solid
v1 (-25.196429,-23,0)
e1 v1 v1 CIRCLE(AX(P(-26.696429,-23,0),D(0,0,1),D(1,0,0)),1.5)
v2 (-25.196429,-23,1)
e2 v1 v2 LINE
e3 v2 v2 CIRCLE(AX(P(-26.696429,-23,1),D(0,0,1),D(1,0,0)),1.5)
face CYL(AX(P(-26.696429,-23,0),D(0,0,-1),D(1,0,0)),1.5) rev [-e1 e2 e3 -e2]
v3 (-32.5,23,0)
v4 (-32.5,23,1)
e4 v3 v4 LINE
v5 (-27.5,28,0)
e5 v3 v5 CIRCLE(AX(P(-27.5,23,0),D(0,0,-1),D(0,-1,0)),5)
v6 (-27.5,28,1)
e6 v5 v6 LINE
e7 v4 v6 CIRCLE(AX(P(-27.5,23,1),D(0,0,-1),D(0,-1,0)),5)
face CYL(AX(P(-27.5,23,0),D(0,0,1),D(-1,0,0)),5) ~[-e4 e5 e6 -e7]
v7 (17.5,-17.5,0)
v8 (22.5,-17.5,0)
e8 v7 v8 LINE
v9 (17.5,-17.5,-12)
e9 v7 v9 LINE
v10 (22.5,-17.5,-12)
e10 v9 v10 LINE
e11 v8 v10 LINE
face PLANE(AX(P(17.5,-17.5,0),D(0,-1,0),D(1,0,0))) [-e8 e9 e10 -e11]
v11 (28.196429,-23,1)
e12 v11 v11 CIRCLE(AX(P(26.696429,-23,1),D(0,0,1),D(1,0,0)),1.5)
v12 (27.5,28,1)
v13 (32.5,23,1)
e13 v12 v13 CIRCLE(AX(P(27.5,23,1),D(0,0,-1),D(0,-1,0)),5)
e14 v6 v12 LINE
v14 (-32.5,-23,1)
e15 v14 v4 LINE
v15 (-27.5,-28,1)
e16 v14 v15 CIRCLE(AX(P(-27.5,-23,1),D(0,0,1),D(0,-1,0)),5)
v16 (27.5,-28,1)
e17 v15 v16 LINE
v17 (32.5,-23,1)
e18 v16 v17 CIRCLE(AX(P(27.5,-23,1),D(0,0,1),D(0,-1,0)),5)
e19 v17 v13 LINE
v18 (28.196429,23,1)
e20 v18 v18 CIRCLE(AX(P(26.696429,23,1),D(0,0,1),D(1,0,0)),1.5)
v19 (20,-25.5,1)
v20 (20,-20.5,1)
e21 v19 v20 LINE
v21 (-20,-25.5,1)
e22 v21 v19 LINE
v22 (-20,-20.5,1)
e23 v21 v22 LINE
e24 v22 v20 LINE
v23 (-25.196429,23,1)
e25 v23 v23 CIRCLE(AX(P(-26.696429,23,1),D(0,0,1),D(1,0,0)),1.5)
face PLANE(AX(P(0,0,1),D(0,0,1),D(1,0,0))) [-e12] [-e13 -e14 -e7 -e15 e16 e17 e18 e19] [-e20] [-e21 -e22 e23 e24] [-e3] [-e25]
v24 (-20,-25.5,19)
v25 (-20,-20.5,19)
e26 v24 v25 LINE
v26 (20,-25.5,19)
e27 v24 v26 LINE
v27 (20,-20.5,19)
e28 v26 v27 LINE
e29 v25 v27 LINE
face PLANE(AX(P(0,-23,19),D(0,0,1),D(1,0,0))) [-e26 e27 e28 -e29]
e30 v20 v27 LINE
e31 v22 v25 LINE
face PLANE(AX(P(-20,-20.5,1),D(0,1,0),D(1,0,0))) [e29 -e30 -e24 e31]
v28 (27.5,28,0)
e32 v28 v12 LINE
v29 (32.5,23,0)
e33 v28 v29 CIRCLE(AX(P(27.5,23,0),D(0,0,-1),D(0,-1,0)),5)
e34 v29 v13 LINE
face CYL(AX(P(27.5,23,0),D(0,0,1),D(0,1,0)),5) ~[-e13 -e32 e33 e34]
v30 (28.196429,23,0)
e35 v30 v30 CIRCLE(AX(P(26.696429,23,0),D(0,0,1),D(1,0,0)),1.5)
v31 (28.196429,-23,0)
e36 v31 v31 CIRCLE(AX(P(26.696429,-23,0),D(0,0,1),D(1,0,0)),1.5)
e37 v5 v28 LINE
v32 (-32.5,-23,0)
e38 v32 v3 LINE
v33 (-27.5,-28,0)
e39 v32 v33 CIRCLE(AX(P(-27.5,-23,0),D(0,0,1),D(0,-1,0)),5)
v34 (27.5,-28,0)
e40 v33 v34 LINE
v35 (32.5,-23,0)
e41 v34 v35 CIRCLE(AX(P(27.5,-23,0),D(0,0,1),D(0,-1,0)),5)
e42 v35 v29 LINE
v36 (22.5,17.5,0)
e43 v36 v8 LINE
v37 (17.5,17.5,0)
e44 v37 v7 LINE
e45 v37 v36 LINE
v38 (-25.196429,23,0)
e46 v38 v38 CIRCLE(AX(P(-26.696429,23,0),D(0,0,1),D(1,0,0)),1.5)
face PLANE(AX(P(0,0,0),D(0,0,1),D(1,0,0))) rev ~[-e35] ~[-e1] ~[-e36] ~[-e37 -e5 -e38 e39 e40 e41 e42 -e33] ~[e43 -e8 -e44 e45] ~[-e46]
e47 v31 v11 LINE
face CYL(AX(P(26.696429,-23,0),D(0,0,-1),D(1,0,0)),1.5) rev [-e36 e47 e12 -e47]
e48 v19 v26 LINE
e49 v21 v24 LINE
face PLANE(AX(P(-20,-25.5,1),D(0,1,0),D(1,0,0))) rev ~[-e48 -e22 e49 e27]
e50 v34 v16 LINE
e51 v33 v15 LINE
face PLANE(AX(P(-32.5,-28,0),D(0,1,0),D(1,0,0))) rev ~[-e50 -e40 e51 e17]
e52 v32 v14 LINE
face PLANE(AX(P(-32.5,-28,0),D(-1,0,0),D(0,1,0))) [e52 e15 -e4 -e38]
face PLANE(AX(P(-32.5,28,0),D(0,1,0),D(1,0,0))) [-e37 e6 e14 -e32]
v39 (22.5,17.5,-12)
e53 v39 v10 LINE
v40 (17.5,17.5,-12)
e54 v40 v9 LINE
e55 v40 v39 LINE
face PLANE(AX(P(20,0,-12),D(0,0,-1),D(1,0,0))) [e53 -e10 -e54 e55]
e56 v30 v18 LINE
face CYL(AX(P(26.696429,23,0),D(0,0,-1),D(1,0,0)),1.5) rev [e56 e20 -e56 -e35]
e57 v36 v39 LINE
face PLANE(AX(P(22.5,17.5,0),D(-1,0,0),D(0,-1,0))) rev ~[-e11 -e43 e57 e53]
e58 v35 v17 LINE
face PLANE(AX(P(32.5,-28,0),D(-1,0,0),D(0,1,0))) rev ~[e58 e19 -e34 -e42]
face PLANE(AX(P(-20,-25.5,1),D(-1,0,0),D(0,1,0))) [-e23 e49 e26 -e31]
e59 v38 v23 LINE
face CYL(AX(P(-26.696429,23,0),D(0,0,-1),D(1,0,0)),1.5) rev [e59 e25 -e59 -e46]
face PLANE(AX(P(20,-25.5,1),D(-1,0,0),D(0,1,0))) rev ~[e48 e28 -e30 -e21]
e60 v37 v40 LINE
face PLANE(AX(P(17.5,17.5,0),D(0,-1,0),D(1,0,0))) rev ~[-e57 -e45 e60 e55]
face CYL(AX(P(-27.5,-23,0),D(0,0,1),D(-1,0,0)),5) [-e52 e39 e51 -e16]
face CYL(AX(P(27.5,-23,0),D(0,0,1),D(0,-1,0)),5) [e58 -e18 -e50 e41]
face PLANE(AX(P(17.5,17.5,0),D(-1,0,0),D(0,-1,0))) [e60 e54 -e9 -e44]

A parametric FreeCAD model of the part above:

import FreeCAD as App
import Part
import Sketcher
from FreeCAD import Vector


def edges_at(feature, points):
    """Names of the edges that pass closest to the given points."""
    edges = feature.Shape.Edges
    near = lambda p: min(range(len(edges)), key=lambda i: edges[i].distToShape(Part.Vertex(*p))[0])
    return sorted({f"Edge{near(p) + 1}" for p in points})

doc = App.newDocument("Part")
body = doc.addObject("PartDesign::Body", "Body")

sketch1 = body.newObject("Sketcher::SketchObject", "Sketch")
sketch1.AttachmentSupport = (doc.getObject("XY_Plane"), [""])
sketch1.MapMode = "FlatFace"
sketch1.addGeometry(Part.LineSegment(Vector(-32.5, 28, 0), Vector(-32.5, -28, 0)), False)
sketch1.addGeometry(Part.LineSegment(Vector(-32.5, -28, 0), Vector(32.5, -28, 0)), False)
sketch1.addGeometry(Part.LineSegment(Vector(32.5, -28, 0), Vector(32.5, 28, 0)), False)
sketch1.addGeometry(Part.LineSegment(Vector(32.5, 28, 0), Vector(-32.5, 28, 0)), False)
sketch1.addGeometry(Part.Circle(Vector(-26.7, -23, 0), Vector(0, 0, 1), 1.5), False)
sketch1.addGeometry(Part.Circle(Vector(26.7, -23, 0), Vector(0, 0, 1), 1.5), False)
sketch1.addGeometry(Part.Circle(Vector(-26.7, 23, 0), Vector(0, 0, 1), 1.5), False)
sketch1.addGeometry(Part.Circle(Vector(26.7, 23, 0), Vector(0, 0, 1), 1.5), False)
sketch1.addConstraint(Sketcher.Constraint("Coincident", 0, 2, 1, 1))
sketch1.addConstraint(Sketcher.Constraint("Coincident", 1, 2, 2, 1))
sketch1.addConstraint(Sketcher.Constraint("Coincident", 2, 2, 3, 1))
sketch1.addConstraint(Sketcher.Constraint("Coincident", 3, 2, 0, 1))
sketch1.addConstraint(Sketcher.Constraint("Vertical", 0))
sketch1.addConstraint(Sketcher.Constraint("Horizontal", 1))
sketch1.addConstraint(Sketcher.Constraint("Vertical", 2))
sketch1.addConstraint(Sketcher.Constraint("Horizontal", 3))
sketch1.addConstraint(Sketcher.Constraint("Equal", 4, 5))
sketch1.addConstraint(Sketcher.Constraint("Equal", 5, 6))
sketch1.addConstraint(Sketcher.Constraint("Equal", 6, 7))
sketch1.addConstraint(Sketcher.Constraint("Symmetric", 5, 3, 6, 3, -1, 1))
sketch1.addConstraint(Sketcher.Constraint("Symmetric", 4, 3, 7, 3, -1, 1))
sketch1.addConstraint(Sketcher.Constraint("Symmetric", 0, 2, 2, 2, -1, 1))
sketch1.addConstraint(Sketcher.Constraint("Symmetric", 4, 3, 5, 3, -2))
sketch1.addConstraint(Sketcher.Constraint("Diameter", 4, 3.0))
sketch1.addConstraint(Sketcher.Constraint("DistanceX", 1, 1, 1, 2, 65.0))
sketch1.addConstraint(Sketcher.Constraint("DistanceY", 0, 2, 0, 1, 56.0))
sketch1.addConstraint(Sketcher.Constraint("DistanceY", 4, 3, -1, 1, 23.0))
sketch1.addConstraint(Sketcher.Constraint("DistanceX", 4, 3, -1, 1, 26.696429))
pad1 = body.newObject("PartDesign::Pad", "Pad")
pad1.Profile = sketch1
pad1.Length = 1
doc.recompute()

fillet = body.newObject("PartDesign::Fillet", "Fillet")
fillet.Base = (pad1, edges_at(pad1, [
    (-32.5, -28, 0.5),
    (32.5, -28, 0.5),
    (32.5, 28, 0.5),
    (-32.5, 28, 0.5),
]))
fillet.Radius = 5

sketch2 = body.newObject("Sketcher::SketchObject", "Sketch001")
sketch2.AttachmentSupport = (doc.getObject("XY_Plane"), [""])
sketch2.MapMode = "FlatFace"
sketch2.AttachmentOffset = App.Placement(Vector(0, 0, 1), App.Rotation())
sketch2.addGeometry(Part.LineSegment(Vector(-20, -20, 0), Vector(-20, -26, 0)), False)
sketch2.addGeometry(Part.LineSegment(Vector(-20, -26, 0), Vector(20, -26, 0)), False)
sketch2.addGeometry(Part.LineSegment(Vector(20, -26, 0), Vector(20, -20, 0)), False)
sketch2.addGeometry(Part.LineSegment(Vector(20, -20, 0), Vector(-20, -20, 0)), False)
sketch2.addConstraint(Sketcher.Constraint("Coincident", 0, 2, 1, 1))
sketch2.addConstraint(Sketcher.Constraint("Coincident", 1, 2, 2, 1))
sketch2.addConstraint(Sketcher.Constraint("Coincident", 2, 2, 3, 1))
sketch2.addConstraint(Sketcher.Constraint("Coincident", 3, 2, 0, 1))
sketch2.addConstraint(Sketcher.Constraint("Vertical", 0))
sketch2.addConstraint(Sketcher.Constraint("Horizontal", 1))
sketch2.addConstraint(Sketcher.Constraint("Vertical", 2))
sketch2.addConstraint(Sketcher.Constraint("Horizontal", 3))
sketch2.addConstraint(Sketcher.Constraint("DistanceX", 1, 1, 1, 2, 40.0))
sketch2.addConstraint(Sketcher.Constraint("DistanceY", 0, 2, 0, 1, 5.0))
sketch2.addConstraint(Sketcher.Constraint("DistanceX", 0, 2, -1, 1, 20.0))
sketch2.addConstraint(Sketcher.Constraint("DistanceY", 0, 2, -1, 1, 25.5))
pad2 = body.newObject("PartDesign::Pad", "Pad001")
pad2.Profile = sketch2
pad2.Length = 18

sketch3 = body.newObject("Sketcher::SketchObject", "Sketch002")
sketch3.AttachmentSupport = (doc.getObject("XY_Plane"), [""])
sketch3.MapMode = "FlatFace"
sketch3.addGeometry(Part.LineSegment(Vector(18, -18, 0), Vector(18, 18, 0)), False)
sketch3.addGeometry(Part.LineSegment(Vector(18, 18, 0), Vector(22, 18, 0)), False)
sketch3.addGeometry(Part.LineSegment(Vector(22, 18, 0), Vector(22, -18, 0)), False)
sketch3.addGeometry(Part.LineSegment(Vector(22, -18, 0), Vector(18, -18, 0)), False)
sketch3.addConstraint(Sketcher.Constraint("Coincident", 0, 2, 1, 1))
sketch3.addConstraint(Sketcher.Constraint("Coincident", 1, 2, 2, 1))
sketch3.addConstraint(Sketcher.Constraint("Coincident", 2, 2, 3, 1))
sketch3.addConstraint(Sketcher.Constraint("Coincident", 3, 2, 0, 1))
sketch3.addConstraint(Sketcher.Constraint("Vertical", 0))
sketch3.addConstraint(Sketcher.Constraint("Horizontal", 1))
sketch3.addConstraint(Sketcher.Constraint("Vertical", 2))
sketch3.addConstraint(Sketcher.Constraint("Horizontal", 3))
sketch3.addConstraint(Sketcher.Constraint("DistanceX", 1, 1, 1, 2, 5.0))
sketch3.addConstraint(Sketcher.Constraint("DistanceY", 0, 1, 0, 2, 35.0))
sketch3.addConstraint(Sketcher.Constraint("DistanceX", -1, 1, 0, 2, 17.5))
sketch3.addConstraint(Sketcher.Constraint("DistanceY", -1, 1, 0, 2, 17.5))
pad3 = body.newObject("PartDesign::Pad", "Pad002")
pad3.Profile = sketch3
pad3.Length = 12
pad3.Reversed = True

doc.recompute()
